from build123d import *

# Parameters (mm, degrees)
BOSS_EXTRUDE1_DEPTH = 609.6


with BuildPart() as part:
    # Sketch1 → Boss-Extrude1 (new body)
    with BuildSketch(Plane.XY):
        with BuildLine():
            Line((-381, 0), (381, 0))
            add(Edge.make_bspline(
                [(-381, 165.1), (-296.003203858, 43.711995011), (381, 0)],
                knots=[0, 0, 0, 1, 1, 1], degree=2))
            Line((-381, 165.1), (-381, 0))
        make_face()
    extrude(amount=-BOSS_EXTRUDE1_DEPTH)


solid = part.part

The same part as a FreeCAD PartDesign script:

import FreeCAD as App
import Part
import Sketcher
Q = App.Units.Quantity

doc = App.newDocument("Part")
body = doc.addObject("PartDesign::Body", "Body")

# Sketch on XY plane
sketch1 = body.newObject("Sketcher::SketchObject", "Sketch")
sketch1.AttachmentSupport = (doc.getObject("XY_Plane"), [""])
sketch1.MapMode = "FlatFace"
sketch1.addGeometry(Part.LineSegment(App.Vector(-381, 0, 0), App.Vector(381, 0, 0)), False)
sketch1.addGeometry(Part.BSplineCurve([App.Vector(-381, 165.1, 0), App.Vector(-296.003204, 43.711995, 0), App.Vector(381, 0, 0)], [3, 3], [0, 1], False, 2, [1, 1, 1], False), False)
sketch1.addGeometry(Part.LineSegment(App.Vector(-381, 165.1, 0), App.Vector(-381, 0, 0)), False)
sketch1.addConstraint(Sketcher.Constraint("Block", 1))
sketch1.addConstraint(Sketcher.Constraint("Coincident", 0, 2, 1, 2))
sketch1.addConstraint(Sketcher.Constraint("Coincident", 1, 1, 2, 1))
sketch1.addConstraint(Sketcher.Constraint("Coincident", 2, 2, 0, 1))
sketch1.addConstraint(Sketcher.Constraint("Horizontal", 0))
sketch1.addConstraint(Sketcher.Constraint("Vertical", 2))
pad1 = body.newObject("PartDesign::Pad", "Pad")
pad1.Profile = sketch1
pad1.Length = Q("24 in")
pad1.Reversed = True

doc.recompute()
